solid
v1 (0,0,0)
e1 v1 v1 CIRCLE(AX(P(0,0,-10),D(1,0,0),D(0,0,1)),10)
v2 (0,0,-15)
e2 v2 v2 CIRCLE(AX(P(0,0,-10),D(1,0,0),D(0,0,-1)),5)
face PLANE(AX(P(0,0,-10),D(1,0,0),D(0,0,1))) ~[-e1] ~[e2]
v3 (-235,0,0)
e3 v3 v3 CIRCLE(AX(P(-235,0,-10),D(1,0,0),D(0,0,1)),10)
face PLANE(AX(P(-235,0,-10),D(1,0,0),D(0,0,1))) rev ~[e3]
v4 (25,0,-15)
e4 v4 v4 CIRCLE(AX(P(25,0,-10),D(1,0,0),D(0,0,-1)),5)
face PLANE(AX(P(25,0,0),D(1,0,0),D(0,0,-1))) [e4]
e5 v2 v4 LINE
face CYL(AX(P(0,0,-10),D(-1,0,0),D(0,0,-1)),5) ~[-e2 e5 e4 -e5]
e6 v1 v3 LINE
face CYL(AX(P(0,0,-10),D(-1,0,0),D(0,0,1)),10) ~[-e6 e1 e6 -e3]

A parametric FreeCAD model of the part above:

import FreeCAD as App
import Part
import Sketcher

V = App.Vector
Q = App.Units.Quantity

doc = App.newDocument("Part")
body = doc.addObject("PartDesign::Body", "Body")

# Sketch on XZ plane
sketch1 = body.newObject("Sketcher::SketchObject", "Sketch")
sketch1.AttachmentSupport = (doc.getObject("XZ_Plane"), [""])
sketch1.MapMode = "FlatFace"
sketch1.addGeometry([
    Part.LineSegment(V(-235, 0, 0), V(0, 0, 0)),
    Part.LineSegment(V(0, 0, 0), V(0, -10, 0)),
    Part.LineSegment(V(0, -10, 0), V(-235, -10, 0)),
    Part.LineSegment(V(-235, -10, 0), V(-235, 0, 0)),
], False)
sketch1.addGeometry(Part.LineSegment(V(-235, -10, 0), V(0, -10, 0)), True)  # axis
sketch1.addConstraint([
    Sketcher.Constraint("Coincident", 0, 2, 1, 1),
    Sketcher.Constraint("Coincident", 1, 2, 2, 1),
    Sketcher.Constraint("Coincident", 2, 2, 3, 1),
    Sketcher.Constraint("Coincident", 3, 2, 0, 1),
    Sketcher.Constraint("Horizontal", 0),
    Sketcher.Constraint("Vertical", 1),
    Sketcher.Constraint("Horizontal", 2),
    Sketcher.Constraint("Vertical", 3),
    Sketcher.Constraint("Horizontal", 4),
    Sketcher.Constraint("Coincident", 0, 2, -1, 1),
    Sketcher.Constraint("Coincident", 4, 1, 2, 2),
    Sketcher.Constraint("PointOnObject", 4, 2, -2),
    Sketcher.Constraint("DistanceX", 0, 1, 0, 2, Q("235 mm")),
    Sketcher.Constraint("DistanceY", 1, 2, 1, 1, Q("10 mm")),
])
revolution = body.newObject("PartDesign::Revolution", "Revolution")
revolution.Profile = sketch1
revolution.ReferenceAxis = (sketch1, ["Axis0"])
revolution.Angle = 360

# Sketch on YZ plane
sketch2 = body.newObject("Sketcher::SketchObject", "Sketch001")
sketch2.AttachmentSupport = (doc.getObject("YZ_Plane"), [""])
sketch2.MapMode = "FlatFace"
sketch2.addGeometry(Part.Circle(V(0, -10, 0), V(0, 0, 1), 5), False)
sketch2.addConstraint([
    Sketcher.Constraint("PointOnObject", 0, 3, -2),
    Sketcher.Constraint("Diameter", 0, Q("10 mm")),
    Sketcher.Constraint("DistanceY", 0, 3, -1, 1, Q("10 mm")),
])
pad1 = body.newObject("PartDesign::Pad", "Pad")
pad1.Profile = sketch2
pad1.Length = 25

doc.recompute()
